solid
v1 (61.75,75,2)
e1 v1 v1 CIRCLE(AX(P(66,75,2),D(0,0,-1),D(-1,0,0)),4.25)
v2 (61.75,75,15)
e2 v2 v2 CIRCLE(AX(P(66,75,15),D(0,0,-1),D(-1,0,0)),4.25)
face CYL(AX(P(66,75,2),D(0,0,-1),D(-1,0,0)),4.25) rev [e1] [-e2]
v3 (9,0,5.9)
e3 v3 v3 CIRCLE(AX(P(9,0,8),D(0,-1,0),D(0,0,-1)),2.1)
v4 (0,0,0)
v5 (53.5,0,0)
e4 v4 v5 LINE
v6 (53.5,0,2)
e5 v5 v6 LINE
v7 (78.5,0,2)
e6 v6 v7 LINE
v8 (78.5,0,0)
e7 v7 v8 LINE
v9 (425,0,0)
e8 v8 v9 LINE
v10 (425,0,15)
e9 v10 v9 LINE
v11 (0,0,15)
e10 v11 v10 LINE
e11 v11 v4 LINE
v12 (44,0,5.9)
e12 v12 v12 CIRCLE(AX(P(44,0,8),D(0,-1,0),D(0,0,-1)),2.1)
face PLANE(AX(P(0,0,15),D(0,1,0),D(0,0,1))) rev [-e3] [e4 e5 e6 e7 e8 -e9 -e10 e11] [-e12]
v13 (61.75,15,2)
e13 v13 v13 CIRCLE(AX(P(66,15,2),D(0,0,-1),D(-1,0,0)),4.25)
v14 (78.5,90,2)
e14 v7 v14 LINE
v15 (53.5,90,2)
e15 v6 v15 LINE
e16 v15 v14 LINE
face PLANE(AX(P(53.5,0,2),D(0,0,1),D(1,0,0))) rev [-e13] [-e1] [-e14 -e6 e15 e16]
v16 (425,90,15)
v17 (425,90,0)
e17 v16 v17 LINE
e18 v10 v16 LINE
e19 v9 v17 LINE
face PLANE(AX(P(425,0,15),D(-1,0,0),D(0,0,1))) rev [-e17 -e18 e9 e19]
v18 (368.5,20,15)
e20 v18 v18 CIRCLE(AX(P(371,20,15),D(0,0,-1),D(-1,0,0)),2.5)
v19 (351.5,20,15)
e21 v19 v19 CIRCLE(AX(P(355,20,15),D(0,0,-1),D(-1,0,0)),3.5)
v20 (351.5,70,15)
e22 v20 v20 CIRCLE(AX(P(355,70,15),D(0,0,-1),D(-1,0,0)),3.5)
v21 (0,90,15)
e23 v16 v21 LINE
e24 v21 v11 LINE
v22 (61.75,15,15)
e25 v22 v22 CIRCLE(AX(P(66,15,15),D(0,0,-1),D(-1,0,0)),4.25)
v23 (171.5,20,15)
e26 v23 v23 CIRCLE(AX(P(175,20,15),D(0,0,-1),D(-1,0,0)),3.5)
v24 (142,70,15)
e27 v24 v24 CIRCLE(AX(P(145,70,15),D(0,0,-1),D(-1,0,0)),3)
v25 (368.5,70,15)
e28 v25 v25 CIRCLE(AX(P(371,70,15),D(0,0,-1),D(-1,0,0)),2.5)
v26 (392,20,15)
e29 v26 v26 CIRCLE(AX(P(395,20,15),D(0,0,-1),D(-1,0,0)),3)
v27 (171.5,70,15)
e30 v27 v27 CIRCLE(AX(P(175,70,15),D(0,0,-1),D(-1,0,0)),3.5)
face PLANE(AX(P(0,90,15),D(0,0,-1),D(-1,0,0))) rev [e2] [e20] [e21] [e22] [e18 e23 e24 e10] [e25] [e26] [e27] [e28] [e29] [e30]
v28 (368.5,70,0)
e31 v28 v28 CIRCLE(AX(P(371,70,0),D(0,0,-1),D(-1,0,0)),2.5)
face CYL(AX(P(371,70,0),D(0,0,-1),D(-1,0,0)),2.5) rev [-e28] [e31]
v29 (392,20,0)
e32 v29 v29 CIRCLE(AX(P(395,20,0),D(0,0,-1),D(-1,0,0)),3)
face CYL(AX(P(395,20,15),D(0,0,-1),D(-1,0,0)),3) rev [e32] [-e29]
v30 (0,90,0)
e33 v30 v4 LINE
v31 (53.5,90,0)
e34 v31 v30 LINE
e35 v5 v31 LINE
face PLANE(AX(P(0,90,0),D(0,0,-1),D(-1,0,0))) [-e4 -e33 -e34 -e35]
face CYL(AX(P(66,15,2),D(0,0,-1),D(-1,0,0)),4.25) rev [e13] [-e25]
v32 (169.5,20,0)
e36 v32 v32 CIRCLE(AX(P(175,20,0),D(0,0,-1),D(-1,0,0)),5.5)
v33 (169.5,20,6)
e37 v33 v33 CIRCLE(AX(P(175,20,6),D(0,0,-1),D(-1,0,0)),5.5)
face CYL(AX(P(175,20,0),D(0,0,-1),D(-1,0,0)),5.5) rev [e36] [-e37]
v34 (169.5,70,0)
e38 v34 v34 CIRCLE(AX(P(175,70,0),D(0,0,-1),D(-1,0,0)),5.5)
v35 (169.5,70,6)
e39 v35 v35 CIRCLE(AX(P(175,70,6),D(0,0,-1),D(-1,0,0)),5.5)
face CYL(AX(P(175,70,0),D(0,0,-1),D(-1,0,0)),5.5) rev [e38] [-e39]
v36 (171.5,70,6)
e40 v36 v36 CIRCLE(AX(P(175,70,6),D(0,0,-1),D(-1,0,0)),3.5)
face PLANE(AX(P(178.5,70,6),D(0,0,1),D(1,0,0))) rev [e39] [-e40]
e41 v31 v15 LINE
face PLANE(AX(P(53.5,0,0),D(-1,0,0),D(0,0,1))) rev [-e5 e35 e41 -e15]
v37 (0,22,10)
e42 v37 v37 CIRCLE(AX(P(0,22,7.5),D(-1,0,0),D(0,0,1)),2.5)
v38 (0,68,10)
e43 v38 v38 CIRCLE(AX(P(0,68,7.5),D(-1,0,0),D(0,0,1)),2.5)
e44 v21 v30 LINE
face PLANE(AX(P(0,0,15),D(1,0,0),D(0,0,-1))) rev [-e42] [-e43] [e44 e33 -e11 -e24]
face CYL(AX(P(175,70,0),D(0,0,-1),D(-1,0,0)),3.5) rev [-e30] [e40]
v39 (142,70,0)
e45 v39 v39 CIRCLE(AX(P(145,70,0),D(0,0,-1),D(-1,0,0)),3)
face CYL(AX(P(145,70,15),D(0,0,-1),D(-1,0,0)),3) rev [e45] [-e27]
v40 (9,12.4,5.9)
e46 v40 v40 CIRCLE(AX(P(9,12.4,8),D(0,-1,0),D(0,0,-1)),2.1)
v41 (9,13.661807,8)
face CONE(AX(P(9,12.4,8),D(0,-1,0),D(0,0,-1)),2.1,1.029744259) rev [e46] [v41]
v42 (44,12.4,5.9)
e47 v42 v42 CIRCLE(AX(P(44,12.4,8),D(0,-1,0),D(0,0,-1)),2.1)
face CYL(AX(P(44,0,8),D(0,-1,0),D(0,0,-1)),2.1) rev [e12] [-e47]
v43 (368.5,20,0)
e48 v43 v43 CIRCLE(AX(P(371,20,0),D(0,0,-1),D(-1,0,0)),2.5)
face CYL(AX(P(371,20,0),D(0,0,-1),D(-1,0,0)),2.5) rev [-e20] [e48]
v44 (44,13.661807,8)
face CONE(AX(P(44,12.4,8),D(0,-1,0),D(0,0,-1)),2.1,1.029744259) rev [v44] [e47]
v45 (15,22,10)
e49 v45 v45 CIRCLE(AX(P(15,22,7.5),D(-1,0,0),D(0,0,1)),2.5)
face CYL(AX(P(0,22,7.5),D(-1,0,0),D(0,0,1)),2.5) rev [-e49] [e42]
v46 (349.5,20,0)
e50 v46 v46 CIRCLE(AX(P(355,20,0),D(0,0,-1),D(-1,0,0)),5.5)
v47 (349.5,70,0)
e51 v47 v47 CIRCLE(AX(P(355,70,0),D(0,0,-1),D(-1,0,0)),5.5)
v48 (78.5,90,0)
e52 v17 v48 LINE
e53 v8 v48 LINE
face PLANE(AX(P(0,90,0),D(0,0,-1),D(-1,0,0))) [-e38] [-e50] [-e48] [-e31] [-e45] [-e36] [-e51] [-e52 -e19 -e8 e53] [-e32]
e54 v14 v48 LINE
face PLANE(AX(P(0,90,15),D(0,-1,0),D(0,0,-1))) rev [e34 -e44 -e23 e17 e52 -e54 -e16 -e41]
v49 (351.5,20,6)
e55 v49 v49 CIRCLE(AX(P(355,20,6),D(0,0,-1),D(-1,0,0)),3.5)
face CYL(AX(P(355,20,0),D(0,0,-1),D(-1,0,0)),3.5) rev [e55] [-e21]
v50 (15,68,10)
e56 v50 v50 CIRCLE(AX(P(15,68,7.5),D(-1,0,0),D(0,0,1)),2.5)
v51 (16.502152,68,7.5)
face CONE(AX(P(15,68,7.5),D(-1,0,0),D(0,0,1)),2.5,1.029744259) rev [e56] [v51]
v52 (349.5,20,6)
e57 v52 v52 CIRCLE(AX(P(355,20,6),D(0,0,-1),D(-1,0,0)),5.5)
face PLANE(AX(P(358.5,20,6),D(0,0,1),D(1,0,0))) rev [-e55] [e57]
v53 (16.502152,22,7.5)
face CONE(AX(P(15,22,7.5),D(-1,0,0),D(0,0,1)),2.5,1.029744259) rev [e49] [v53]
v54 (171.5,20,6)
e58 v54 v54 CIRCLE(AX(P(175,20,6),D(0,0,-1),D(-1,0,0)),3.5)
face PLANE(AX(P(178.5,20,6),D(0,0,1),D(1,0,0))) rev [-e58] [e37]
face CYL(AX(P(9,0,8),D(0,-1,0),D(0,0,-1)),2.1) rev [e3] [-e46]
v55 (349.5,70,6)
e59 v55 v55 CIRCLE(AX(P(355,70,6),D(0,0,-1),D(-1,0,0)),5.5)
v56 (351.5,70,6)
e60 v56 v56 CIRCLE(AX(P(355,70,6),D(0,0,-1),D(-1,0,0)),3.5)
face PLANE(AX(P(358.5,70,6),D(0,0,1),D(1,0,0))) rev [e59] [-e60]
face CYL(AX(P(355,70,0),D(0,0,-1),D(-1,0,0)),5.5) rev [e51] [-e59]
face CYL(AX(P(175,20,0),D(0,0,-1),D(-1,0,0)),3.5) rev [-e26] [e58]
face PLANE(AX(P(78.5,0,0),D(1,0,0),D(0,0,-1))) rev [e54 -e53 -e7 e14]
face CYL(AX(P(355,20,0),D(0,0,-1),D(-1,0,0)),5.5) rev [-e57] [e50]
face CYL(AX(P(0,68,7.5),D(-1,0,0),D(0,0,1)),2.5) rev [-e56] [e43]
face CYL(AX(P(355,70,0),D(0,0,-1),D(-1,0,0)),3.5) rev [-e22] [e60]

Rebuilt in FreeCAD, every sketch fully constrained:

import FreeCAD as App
import Part
import Sketcher

doc = App.newDocument("Part")
body = doc.addObject("PartDesign::Body", "Body")

sketch1 = body.newObject("Sketcher::SketchObject", "Sketch")
sketch1.AttachmentSupport = (doc.getObject("XY_Plane"), [""])
sketch1.MapMode = "FlatFace"
sketch1.addGeometry(Part.LineSegment(App.Vector(0, 90, 0), App.Vector(0, 0, 0)), False)
sketch1.addGeometry(Part.LineSegment(App.Vector(0, 0, 0), App.Vector(425, 0, 0)), False)
sketch1.addGeometry(Part.LineSegment(App.Vector(425, 0, 0), App.Vector(425, 90, 0)), False)
sketch1.addGeometry(Part.LineSegment(App.Vector(425, 90, 0), App.Vector(0, 90, 0)), False)
sketch1.addConstraint(Sketcher.Constraint("Coincident", 0, 2, 1, 1))
sketch1.addConstraint(Sketcher.Constraint("Coincident", 1, 2, 2, 1))
sketch1.addConstraint(Sketcher.Constraint("Coincident", 2, 2, 3, 1))
sketch1.addConstraint(Sketcher.Constraint("Coincident", 3, 2, 0, 1))
sketch1.addConstraint(Sketcher.Constraint("Vertical", 0))
sketch1.addConstraint(Sketcher.Constraint("Horizontal", 1))
sketch1.addConstraint(Sketcher.Constraint("Vertical", 2))
sketch1.addConstraint(Sketcher.Constraint("Horizontal", 3))
sketch1.addConstraint(Sketcher.Constraint("Coincident", 0, 2, -1, 1))
sketch1.addConstraint(Sketcher.Constraint("DistanceX", 1, 1, 1, 2, 425.0))
sketch1.addConstraint(Sketcher.Constraint("DistanceY", 0, 2, 0, 1, 90.0))
pad1 = body.newObject("PartDesign::Pad", "Pad")
pad1.Profile = sketch1
pad1.Length = 15

sketch2 = body.newObject("Sketcher::SketchObject", "Sketch001")
sketch2.AttachmentSupport = (doc.getObject("XZ_Plane"), [""])
sketch2.MapMode = "FlatFace"
sketch2.AttachmentOffset = App.Placement(App.Vector(0, 0, -90), App.Rotation())
sketch2.addGeometry(Part.LineSegment(App.Vector(53.5, 0, 0), App.Vector(53.5, 2, 0)), False)
sketch2.addGeometry(Part.LineSegment(App.Vector(53.5, 2, 0), App.Vector(78.5, 2, 0)), False)
sketch2.addGeometry(Part.LineSegment(App.Vector(78.5, 2, 0), App.Vector(78.5, 0, 0)), False)
sketch2.addGeometry(Part.LineSegment(App.Vector(78.5, 0, 0), App.Vector(53.5, 0, 0)), False)
sketch2.addConstraint(Sketcher.Constraint("Coincident", 0, 2, 1, 1))
sketch2.addConstraint(Sketcher.Constraint("Coincident", 1, 2, 2, 1))
sketch2.addConstraint(Sketcher.Constraint("Coincident", 2, 2, 3, 1))
sketch2.addConstraint(Sketcher.Constraint("Coincident", 3, 2, 0, 1))
sketch2.addConstraint(Sketcher.Constraint("Vertical", 0))
sketch2.addConstraint(Sketcher.Constraint("Horizontal", 1))
sketch2.addConstraint(Sketcher.Constraint("Vertical", 2))
sketch2.addConstraint(Sketcher.Constraint("Horizontal", 3))
sketch2.addConstraint(Sketcher.Constraint("PointOnObject", 2, 2, -1))
sketch2.addConstraint(Sketcher.Constraint("DistanceX", 1, 1, 1, 2, 25.0))
sketch2.addConstraint(Sketcher.Constraint("DistanceY", 0, 1, 0, 2, 2.0))
sketch2.addConstraint(Sketcher.Constraint("DistanceX", -1, 1, 0, 2, 53.5))
pocket1 = body.newObject("PartDesign::Pocket", "Pocket")
pocket1.Profile = sketch2
pocket1.Type = "ThroughAll"
pocket1.Reversed = True

sketch3 = body.newObject("Sketcher::SketchObject", "Sketch002")
sketch3.AttachmentSupport = (doc.getObject("XY_Plane"), [""])
sketch3.MapMode = "FlatFace"
sketch3.AttachmentOffset = App.Placement(App.Vector(0, 0, 2), App.Rotation())
sketch3.addGeometry(Part.Circle(App.Vector(66, 75, 0), App.Vector(0, 0, 1), 4.2), False)
sketch3.addGeometry(Part.Circle(App.Vector(66, 15, 0), App.Vector(0, 0, 1), 4.2), False)
sketch3.addConstraint(Sketcher.Constraint("Equal", 0, 1))
sketch3.addConstraint(Sketcher.Constraint("Vertical", 0, 3, 1, 3))
sketch3.addConstraint(Sketcher.Constraint("Diameter", 0, 8.5))
sketch3.addConstraint(Sketcher.Constraint("DistanceX", -1, 1, 0, 3, 66.0))
sketch3.addConstraint(Sketcher.Constraint("DistanceY", -1, 1, 0, 3, 75.0))
sketch3.addConstraint(Sketcher.Constraint("DistanceY", -1, 1, 1, 3, 15.0))
doc.recompute()
hole = body.newObject("PartDesign::Hole", "Hole")
hole.Profile = sketch3
hole.ThreadType = "None"
hole.Diameter = 8.5
hole.DepthType = "Dimension"
hole.Depth = 24.5
hole.DrillPoint = "Angled"
hole.DrillPointAngle = 118
hole.Reversed = True

sketch4 = body.newObject("Sketcher::SketchObject", "Sketch003")
sketch4.AttachmentSupport = (doc.getObject("YZ_Plane"), [""])
sketch4.MapMode = "FlatFace"
sketch4.addGeometry(Part.Circle(App.Vector(68, 7.5, 0), App.Vector(0, 0, 1), 2.5), False)
sketch4.addGeometry(Part.Circle(App.Vector(22, 7.5, 0), App.Vector(0, 0, 1), 2.5), False)
sketch4.addConstraint(Sketcher.Constraint("Equal", 0, 1))
sketch4.addConstraint(Sketcher.Constraint("Horizontal", 0, 3, 1, 3))
sketch4.addConstraint(Sketcher.Constraint("Diameter", 0, 5.0))
sketch4.addConstraint(Sketcher.Constraint("DistanceX", -1, 1, 0, 3, 68.0))
sketch4.addConstraint(Sketcher.Constraint("DistanceX", -1, 1, 1, 3, 22.0))
sketch4.addConstraint(Sketcher.Constraint("DistanceY", -1, 1, 0, 3, 7.5))
doc.recompute()
hole2 = body.newObject("PartDesign::Hole", "Hole001")
hole2.Profile = sketch4
hole2.ThreadType = "None"
hole2.Diameter = 5
hole2.DepthType = "Dimension"
hole2.Depth = 15
hole2.DrillPoint = "Angled"
hole2.DrillPointAngle = 118
hole2.Reversed = True

sketch5 = body.newObject("Sketcher::SketchObject", "Sketch004")
sketch5.AttachmentSupport = (doc.getObject("XZ_Plane"), [""])
sketch5.MapMode = "FlatFace"
sketch5.addGeometry(Part.Circle(App.Vector(9, 8, 0), App.Vector(0, 0, 1), 2.1), False)
sketch5.addGeometry(Part.Circle(App.Vector(44, 8, 0), App.Vector(0, 0, 1), 2.1), False)
sketch5.addConstraint(Sketcher.Constraint("Equal", 0, 1))
sketch5.addConstraint(Sketcher.Constraint("Horizontal", 0, 3, 1, 3))
sketch5.addConstraint(Sketcher.Constraint("Diameter", 0, 4.2))
sketch5.addConstraint(Sketcher.Constraint("DistanceX", -1, 1, 0, 3, 9.0))
sketch5.addConstraint(Sketcher.Constraint("DistanceY", -1, 1, 0, 3, 8.0))
sketch5.addConstraint(Sketcher.Constraint("DistanceX", -1, 1, 1, 3, 44.0))
doc.recompute()
hole3 = body.newObject("PartDesign::Hole", "Hole002")
hole3.Profile = sketch5
hole3.ThreadType = "None"
hole3.Diameter = 4.2
hole3.DepthType = "Dimension"
hole3.Depth = 12.4
hole3.DrillPoint = "Angled"
hole3.DrillPointAngle = 118

sketch6 = body.newObject("Sketcher::SketchObject", "Sketch005")
sketch6.AttachmentSupport = (doc.getObject("XY_Plane"), [""])
sketch6.MapMode = "FlatFace"
sketch6.addGeometry(Part.Circle(App.Vector(371, 70, 0), App.Vector(0, 0, 1), 2.5), False)
sketch6.addGeometry(Part.Circle(App.Vector(371, 20, 0), App.Vector(0, 0, 1), 2.5), False)
sketch6.addConstraint(Sketcher.Constraint("Equal", 0, 1))
sketch6.addConstraint(Sketcher.Constraint("Vertical", 0, 3, 1, 3))
sketch6.addConstraint(Sketcher.Constraint("Diameter", 0, 5.0))
sketch6.addConstraint(Sketcher.Constraint("DistanceX", -1, 1, 0, 3, 371.0))
sketch6.addConstraint(Sketcher.Constraint("DistanceY", -1, 1, 0, 3, 70.0))
sketch6.addConstraint(Sketcher.Constraint("DistanceY", -1, 1, 1, 3, 20.0))
doc.recompute()
hole4 = body.newObject("PartDesign::Hole", "Hole003")
hole4.Profile = sketch6
hole4.ThreadType = "None"
hole4.Diameter = 5
hole4.DepthType = "Dimension"
hole4.Depth = 15
hole4.DrillPoint = "Angled"
hole4.DrillPointAngle = 118
hole4.Reversed = True

sketch7 = body.newObject("Sketcher::SketchObject", "Sketch006")
sketch7.AttachmentSupport = (doc.getObject("XY_Plane"), [""])
sketch7.MapMode = "FlatFace"
sketch7.addGeometry(Part.Circle(App.Vector(145, 70, 0), App.Vector(0, 0, 1), 3), False)
sketch7.addGeometry(Part.Circle(App.Vector(395, 20, 0), App.Vector(0, 0, 1), 3), False)
sketch7.addConstraint(Sketcher.Constraint("Equal", 0, 1))
sketch7.addConstraint(Sketcher.Constraint("Diameter", 0, 6.0))
sketch7.addConstraint(Sketcher.Constraint("DistanceX", -1, 1, 0, 3, 145.0))
sketch7.addConstraint(Sketcher.Constraint("DistanceY", -1, 1, 0, 3, 70.0))
sketch7.addConstraint(Sketcher.Constraint("DistanceX", -1, 1, 1, 3, 395.0))
sketch7.addConstraint(Sketcher.Constraint("DistanceY", -1, 1, 1, 3, 20.0))
pocket2 = body.newObject("PartDesign::Pocket", "Pocket001")
pocket2.Profile = sketch7
pocket2.Type = "ThroughAll"
pocket2.Reversed = True

sketch8 = body.newObject("Sketcher::SketchObject", "Sketch007")
sketch8.AttachmentSupport = (doc.getObject("XY_Plane"), [""])
sketch8.MapMode = "FlatFace"
sketch8.addGeometry(Part.Circle(App.Vector(175, 20, 0), App.Vector(0, 0, 1), 3.5), False)
sketch8.addGeometry(Part.Circle(App.Vector(355, 20, 0), App.Vector(0, 0, 1), 3.5), False)
sketch8.addGeometry(Part.Circle(App.Vector(175, 70, 0), App.Vector(0, 0, 1), 3.5), False)
sketch8.addGeometry(Part.Circle(App.Vector(355, 70, 0), App.Vector(0, 0, 1), 3.5), False)
sketch8.addConstraint(Sketcher.Constraint("Equal", 0, 1))
sketch8.addConstraint(Sketcher.Constraint("Equal", 1, 2))
sketch8.addConstraint(Sketcher.Constraint("Equal", 2, 3))
sketch8.addConstraint(Sketcher.Constraint("Horizontal", 0, 3, 1, 3))
sketch8.addConstraint(Sketcher.Constraint("Horizontal", 2, 3, 3, 3))
sketch8.addConstraint(Sketcher.Constraint("Vertical", 0, 3, 2, 3))
sketch8.addConstraint(Sketcher.Constraint("Vertical", 1, 3, 3, 3))
sketch8.addConstraint(Sketcher.Constraint("Diameter", 0, 7.0))
sketch8.addConstraint(Sketcher.Constraint("DistanceX", -1, 1, 0, 3, 175.0))
sketch8.addConstraint(Sketcher.Constraint("DistanceY", -1, 1, 0, 3, 20.0))
sketch8.addConstraint(Sketcher.Constraint("DistanceX", -1, 1, 1, 3, 355.0))
sketch8.addConstraint(Sketcher.Constraint("DistanceY", -1, 1, 2, 3, 70.0))
doc.recompute()
hole5 = body.newObject("PartDesign::Hole", "Hole004")
hole5.Profile = sketch8
hole5.ThreadType = "None"
hole5.Diameter = 7
hole5.DepthType = "ThroughAll"
hole5.HoleCutType = "Counterbore"
hole5.HoleCutDiameter = 11
hole5.HoleCutDepth = 6
hole5.Reversed = True

doc.recompute()
